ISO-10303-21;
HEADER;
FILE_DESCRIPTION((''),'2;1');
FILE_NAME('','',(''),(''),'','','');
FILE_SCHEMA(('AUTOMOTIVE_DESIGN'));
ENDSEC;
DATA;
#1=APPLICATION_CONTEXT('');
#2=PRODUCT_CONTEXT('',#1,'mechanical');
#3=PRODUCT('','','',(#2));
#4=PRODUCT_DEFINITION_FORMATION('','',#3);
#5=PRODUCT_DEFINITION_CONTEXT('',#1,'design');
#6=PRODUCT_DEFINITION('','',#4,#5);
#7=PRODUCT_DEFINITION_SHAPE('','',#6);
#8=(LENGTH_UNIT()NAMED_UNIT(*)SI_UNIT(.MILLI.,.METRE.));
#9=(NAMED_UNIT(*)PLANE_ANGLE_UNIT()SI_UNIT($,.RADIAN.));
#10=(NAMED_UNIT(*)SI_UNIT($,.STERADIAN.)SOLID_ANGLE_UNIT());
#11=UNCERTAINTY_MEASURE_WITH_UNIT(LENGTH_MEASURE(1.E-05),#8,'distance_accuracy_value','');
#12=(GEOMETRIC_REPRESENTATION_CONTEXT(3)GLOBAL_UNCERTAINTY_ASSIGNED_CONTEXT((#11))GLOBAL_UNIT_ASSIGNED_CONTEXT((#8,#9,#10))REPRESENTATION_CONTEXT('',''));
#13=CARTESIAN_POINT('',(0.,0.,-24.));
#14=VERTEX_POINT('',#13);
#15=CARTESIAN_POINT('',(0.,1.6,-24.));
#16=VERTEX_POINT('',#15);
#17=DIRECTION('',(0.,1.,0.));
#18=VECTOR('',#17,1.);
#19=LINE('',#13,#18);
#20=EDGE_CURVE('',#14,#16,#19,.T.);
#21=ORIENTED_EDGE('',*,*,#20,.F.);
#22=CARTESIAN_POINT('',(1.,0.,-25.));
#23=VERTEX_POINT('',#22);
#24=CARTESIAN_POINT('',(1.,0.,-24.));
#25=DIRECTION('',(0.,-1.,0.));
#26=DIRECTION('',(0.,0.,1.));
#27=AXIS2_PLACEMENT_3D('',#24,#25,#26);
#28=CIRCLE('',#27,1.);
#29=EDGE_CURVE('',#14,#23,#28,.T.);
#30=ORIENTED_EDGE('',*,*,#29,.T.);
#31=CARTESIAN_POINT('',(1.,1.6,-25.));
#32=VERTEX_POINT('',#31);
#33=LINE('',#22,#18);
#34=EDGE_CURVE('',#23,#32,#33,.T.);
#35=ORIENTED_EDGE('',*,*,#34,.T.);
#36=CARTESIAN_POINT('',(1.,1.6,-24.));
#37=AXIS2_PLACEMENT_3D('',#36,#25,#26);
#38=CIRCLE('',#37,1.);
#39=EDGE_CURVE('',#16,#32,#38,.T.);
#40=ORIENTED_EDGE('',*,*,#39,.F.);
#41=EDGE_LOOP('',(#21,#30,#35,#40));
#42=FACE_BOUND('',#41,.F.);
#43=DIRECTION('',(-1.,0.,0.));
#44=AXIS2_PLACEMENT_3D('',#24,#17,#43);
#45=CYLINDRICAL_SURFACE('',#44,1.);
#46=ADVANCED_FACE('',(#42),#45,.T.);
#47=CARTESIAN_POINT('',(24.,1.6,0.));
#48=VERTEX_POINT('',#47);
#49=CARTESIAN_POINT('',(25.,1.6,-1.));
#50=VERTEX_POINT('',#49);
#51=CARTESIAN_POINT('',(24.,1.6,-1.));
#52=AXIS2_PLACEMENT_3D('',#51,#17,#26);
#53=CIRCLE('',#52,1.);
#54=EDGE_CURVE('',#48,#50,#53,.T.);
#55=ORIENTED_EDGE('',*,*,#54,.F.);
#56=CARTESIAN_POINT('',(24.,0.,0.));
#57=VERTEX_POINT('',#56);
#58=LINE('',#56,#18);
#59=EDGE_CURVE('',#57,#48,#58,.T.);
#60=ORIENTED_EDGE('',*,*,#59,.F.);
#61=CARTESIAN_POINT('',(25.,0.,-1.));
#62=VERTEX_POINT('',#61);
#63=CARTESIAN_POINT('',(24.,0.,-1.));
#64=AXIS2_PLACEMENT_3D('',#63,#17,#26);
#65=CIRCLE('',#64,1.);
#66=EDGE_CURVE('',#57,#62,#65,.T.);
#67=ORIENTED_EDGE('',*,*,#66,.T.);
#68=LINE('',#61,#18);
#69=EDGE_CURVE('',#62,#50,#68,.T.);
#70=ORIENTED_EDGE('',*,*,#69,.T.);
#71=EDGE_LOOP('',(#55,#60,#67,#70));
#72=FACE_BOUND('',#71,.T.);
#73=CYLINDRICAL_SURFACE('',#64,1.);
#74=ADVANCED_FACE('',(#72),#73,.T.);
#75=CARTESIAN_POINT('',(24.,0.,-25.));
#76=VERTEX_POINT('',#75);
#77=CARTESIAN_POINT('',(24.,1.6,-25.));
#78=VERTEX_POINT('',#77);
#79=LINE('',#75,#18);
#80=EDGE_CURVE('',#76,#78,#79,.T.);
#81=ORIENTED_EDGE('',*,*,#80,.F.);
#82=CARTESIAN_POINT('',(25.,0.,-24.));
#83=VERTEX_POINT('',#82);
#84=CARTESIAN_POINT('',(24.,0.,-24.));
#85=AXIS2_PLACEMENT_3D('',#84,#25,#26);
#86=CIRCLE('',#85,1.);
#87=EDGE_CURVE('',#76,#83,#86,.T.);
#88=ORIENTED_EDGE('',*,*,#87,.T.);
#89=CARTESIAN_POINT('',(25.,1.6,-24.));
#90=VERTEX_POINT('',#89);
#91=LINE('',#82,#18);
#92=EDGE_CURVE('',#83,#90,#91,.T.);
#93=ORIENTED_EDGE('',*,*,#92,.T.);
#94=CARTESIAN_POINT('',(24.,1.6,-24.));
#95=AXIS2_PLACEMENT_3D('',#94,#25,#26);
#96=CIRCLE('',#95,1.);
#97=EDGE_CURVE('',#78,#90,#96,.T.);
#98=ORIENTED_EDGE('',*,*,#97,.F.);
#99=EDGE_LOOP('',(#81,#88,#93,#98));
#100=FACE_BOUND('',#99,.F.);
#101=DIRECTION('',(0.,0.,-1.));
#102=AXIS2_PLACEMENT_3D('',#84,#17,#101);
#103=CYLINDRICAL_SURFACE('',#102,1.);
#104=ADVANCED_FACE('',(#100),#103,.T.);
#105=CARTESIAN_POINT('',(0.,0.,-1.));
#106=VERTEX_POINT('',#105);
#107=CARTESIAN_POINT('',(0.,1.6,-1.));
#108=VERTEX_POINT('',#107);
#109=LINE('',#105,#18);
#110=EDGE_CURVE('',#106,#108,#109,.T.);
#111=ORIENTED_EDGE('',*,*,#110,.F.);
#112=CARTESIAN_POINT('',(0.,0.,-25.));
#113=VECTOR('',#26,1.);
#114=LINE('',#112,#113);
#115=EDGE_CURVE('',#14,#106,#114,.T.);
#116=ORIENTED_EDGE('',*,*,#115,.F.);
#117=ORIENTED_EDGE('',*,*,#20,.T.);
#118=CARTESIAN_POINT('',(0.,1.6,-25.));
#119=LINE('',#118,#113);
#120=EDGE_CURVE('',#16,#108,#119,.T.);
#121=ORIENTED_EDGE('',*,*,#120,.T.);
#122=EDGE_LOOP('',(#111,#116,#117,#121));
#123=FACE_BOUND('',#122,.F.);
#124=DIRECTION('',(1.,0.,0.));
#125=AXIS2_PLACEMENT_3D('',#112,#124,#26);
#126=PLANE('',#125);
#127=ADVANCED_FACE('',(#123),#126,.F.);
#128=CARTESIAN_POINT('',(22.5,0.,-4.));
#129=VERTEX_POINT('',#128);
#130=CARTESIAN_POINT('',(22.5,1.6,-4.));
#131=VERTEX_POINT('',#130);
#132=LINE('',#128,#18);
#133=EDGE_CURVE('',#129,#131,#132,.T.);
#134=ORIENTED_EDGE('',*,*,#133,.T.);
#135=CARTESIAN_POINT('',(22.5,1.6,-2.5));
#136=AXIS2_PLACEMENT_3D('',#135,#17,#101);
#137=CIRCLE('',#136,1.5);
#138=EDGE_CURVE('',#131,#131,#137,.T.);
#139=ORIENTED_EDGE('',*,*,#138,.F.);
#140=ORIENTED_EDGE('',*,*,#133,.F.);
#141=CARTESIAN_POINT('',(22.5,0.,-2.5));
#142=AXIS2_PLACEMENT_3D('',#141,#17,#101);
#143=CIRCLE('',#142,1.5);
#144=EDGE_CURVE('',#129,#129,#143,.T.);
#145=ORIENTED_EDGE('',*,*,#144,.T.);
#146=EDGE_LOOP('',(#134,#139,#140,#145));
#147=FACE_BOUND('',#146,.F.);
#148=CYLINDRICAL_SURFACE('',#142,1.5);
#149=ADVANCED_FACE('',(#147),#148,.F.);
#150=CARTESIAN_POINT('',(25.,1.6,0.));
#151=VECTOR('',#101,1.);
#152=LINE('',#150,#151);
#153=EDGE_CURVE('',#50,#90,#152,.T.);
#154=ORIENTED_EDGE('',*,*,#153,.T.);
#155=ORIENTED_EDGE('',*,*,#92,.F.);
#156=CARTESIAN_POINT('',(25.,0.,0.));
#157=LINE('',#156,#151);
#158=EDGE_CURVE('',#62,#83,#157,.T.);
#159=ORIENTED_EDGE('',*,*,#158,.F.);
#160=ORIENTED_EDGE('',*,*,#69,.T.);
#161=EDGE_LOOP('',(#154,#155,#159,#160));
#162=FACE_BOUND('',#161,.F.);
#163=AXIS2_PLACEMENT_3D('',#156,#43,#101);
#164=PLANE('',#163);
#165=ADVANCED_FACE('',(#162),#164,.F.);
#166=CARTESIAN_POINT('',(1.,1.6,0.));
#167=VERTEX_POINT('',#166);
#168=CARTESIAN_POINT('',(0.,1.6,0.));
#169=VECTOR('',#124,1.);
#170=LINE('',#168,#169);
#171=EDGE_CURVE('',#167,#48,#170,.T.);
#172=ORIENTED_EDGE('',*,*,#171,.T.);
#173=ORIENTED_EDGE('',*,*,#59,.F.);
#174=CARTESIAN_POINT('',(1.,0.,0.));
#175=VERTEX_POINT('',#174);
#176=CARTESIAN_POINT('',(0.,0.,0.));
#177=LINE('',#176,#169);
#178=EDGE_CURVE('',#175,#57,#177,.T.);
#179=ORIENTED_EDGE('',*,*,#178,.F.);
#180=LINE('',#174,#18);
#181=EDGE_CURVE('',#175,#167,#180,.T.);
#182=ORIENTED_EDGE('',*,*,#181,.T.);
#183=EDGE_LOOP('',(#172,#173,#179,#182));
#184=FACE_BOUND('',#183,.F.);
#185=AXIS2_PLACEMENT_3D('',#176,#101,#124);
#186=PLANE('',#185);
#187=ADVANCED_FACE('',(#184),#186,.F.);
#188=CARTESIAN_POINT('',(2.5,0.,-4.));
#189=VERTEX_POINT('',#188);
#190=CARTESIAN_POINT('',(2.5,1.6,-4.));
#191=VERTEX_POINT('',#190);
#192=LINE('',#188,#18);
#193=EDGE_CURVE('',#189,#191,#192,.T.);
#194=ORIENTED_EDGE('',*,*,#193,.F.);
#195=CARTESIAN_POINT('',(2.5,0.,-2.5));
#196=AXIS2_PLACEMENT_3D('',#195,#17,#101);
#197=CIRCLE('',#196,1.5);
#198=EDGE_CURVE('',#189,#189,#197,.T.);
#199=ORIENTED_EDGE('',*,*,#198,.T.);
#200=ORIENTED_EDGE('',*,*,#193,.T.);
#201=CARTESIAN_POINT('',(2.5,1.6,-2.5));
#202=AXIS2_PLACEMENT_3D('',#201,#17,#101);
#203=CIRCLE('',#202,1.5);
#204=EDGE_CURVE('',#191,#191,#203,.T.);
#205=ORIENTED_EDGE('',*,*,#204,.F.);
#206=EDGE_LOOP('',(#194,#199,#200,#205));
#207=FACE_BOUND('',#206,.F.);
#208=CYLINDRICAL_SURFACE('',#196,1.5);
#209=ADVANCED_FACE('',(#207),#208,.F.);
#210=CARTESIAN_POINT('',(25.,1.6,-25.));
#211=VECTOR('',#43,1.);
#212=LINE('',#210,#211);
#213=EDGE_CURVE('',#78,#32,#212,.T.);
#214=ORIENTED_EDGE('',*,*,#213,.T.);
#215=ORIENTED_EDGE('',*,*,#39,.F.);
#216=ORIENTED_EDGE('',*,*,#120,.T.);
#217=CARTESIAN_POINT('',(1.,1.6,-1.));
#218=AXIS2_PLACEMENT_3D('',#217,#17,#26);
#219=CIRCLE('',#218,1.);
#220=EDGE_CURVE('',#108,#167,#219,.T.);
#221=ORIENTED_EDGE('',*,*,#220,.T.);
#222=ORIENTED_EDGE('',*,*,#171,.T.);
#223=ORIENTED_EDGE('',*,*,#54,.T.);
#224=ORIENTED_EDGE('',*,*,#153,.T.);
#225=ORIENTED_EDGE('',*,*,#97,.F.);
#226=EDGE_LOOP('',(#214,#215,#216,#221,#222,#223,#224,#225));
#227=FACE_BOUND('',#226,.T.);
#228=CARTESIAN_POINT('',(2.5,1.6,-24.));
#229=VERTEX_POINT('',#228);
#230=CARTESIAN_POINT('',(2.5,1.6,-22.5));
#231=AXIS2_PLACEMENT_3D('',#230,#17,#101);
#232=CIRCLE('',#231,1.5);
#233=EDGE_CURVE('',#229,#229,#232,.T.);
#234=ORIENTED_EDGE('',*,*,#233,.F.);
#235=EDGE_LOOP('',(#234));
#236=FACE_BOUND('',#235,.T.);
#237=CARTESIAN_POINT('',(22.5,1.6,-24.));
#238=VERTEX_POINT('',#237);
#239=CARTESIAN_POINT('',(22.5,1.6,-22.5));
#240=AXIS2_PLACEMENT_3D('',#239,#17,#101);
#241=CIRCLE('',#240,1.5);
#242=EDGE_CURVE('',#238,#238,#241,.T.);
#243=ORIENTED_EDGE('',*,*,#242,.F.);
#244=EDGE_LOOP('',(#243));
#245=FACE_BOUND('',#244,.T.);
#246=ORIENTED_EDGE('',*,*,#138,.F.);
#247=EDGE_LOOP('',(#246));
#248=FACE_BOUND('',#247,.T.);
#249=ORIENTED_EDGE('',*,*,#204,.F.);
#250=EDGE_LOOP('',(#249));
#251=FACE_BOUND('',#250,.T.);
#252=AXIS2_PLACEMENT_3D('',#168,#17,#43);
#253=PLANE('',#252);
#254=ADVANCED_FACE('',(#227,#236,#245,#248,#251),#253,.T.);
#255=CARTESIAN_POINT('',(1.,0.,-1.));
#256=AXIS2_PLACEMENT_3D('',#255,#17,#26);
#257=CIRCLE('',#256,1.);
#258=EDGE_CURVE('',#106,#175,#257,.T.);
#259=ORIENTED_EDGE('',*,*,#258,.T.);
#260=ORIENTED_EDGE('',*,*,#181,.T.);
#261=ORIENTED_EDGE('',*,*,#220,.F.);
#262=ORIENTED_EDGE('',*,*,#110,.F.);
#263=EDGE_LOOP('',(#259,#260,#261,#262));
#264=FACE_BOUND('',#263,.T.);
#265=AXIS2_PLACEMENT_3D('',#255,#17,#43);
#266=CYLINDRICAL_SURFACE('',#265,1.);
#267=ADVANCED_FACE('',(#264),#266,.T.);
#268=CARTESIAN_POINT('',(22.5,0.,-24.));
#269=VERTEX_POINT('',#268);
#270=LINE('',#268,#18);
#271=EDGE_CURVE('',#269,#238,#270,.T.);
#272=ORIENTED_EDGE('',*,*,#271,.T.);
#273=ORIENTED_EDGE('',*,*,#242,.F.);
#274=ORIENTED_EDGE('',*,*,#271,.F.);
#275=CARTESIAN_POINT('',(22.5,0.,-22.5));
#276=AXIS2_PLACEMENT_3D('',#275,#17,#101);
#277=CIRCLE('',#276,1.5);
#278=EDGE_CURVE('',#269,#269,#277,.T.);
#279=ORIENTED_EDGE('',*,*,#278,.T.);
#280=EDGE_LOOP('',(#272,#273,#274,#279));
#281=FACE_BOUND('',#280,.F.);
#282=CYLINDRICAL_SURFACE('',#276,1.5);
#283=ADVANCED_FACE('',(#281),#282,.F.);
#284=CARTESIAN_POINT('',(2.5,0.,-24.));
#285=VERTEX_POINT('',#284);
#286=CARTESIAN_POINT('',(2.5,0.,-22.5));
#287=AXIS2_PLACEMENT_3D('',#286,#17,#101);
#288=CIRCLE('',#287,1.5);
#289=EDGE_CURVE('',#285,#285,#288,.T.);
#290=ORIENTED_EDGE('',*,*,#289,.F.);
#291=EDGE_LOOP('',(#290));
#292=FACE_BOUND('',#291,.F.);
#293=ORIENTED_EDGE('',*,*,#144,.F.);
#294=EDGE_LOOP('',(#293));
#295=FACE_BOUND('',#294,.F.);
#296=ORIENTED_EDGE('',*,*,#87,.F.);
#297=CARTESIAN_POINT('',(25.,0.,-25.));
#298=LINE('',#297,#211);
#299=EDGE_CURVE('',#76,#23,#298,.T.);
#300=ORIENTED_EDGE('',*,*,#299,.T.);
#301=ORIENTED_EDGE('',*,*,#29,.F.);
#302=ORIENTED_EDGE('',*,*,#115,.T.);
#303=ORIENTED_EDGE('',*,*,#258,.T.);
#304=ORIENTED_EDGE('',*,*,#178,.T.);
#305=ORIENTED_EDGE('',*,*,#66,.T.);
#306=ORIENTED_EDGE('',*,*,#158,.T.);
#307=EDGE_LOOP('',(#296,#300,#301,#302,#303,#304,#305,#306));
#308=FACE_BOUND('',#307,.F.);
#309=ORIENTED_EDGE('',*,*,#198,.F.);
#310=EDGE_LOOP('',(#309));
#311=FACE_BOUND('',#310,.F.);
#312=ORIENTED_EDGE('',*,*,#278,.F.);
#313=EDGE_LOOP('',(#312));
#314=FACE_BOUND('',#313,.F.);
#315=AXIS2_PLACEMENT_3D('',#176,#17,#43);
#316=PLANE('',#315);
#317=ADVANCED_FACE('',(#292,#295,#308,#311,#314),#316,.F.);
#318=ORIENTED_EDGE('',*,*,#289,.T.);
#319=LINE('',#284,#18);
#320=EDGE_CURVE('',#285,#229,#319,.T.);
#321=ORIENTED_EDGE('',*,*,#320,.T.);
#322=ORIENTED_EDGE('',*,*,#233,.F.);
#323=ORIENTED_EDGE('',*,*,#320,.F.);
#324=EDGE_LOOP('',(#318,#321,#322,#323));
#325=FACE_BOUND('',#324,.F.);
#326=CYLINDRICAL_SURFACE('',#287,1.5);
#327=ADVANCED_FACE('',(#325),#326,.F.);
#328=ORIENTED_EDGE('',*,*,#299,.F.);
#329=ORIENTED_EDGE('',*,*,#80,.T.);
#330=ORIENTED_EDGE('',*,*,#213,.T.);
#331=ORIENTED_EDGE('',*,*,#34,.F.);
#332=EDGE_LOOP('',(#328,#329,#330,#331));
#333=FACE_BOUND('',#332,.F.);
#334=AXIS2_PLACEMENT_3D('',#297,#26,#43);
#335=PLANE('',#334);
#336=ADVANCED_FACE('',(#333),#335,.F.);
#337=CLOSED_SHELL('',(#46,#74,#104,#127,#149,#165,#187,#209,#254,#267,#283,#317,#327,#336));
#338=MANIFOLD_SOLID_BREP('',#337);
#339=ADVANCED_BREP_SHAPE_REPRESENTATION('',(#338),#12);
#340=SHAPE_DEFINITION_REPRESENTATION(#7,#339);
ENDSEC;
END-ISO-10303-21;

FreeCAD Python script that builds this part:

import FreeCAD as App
import Part
import Sketcher


def edges_at(feature, points):
    """Names of the edges that pass closest to the given points."""
    edges = feature.Shape.Edges
    near = lambda p: min(range(len(edges)), key=lambda i: edges[i].distToShape(Part.Vertex(*p))[0])
    return sorted({f"Edge{near(p) + 1}" for p in points})


def add_polygon(sketch, points):
    """Adds a closed chain of lines whose ends are joined by coincident constraints."""
    first, n = sketch.GeometryCount, len(points)
    for a, b in zip(points, points[1:] + points[:1]):
        sketch.addGeometry(Part.LineSegment(App.Vector(*a, 0), App.Vector(*b, 0)), False)
    for i in range(n):
        sketch.addConstraint(Sketcher.Constraint("Coincident", first + i, 2, first + (i + 1) % n, 1))

doc = App.newDocument("Part")
params = doc.addObject("Spreadsheet::Sheet", "Params")
for row, (alias, value) in enumerate([
    ("sketch1_width", "25 mm"),
    ("pad1_length", "1.6 mm"),
    ("sketch2_diameter", "3 mm"),
    ("hole_diameter", "3 mm"),
    ("hole_depth", "8 mm"),
    ("fillet_radius", "1 mm"),
], start=1):
    params.set(f"A{row}", alias)
    params.set(f"B{row}", "=" + value)
    params.setAlias(f"B{row}", alias)

body = doc.addObject("PartDesign::Body", "Body")

# Sketch on XZ plane
sketch1 = body.newObject("Sketcher::SketchObject", "Sketch")
sketch1.AttachmentSupport = (doc.getObject("XZ_Plane"), [""])
sketch1.MapMode = "FlatFace"
add_polygon(sketch1, [(0, -25), (0, 0), (25, 0), (25, -25)])  # lines 0-3
sketch1.addConstraint(Sketcher.Constraint("Vertical", 0))
sketch1.addConstraint(Sketcher.Constraint("Horizontal", 1))
sketch1.addConstraint(Sketcher.Constraint("Vertical", 2))
sketch1.addConstraint(Sketcher.Constraint("Horizontal", 3))
sketch1.addConstraint(Sketcher.Constraint("Coincident", 0, 2, -1, 1))
sketch1.addConstraint(Sketcher.Constraint("Equal", 3, 0))
sketch1.addConstraint(Sketcher.Constraint("DistanceX", 1, 1, 1, 2, 25.0))
sketch1.setExpression("Constraints[10]", "Params.sketch1_width")
pad1 = body.newObject("PartDesign::Pad", "Pad")
pad1.Profile = sketch1
pad1.setExpression("Length", "Params.pad1_length")
pad1.Reversed = True

# Sketch on XZ plane
sketch2 = body.newObject("Sketcher::SketchObject", "Sketch001")
sketch2.AttachmentSupport = (doc.getObject("XZ_Plane"), [""])
sketch2.MapMode = "FlatFace"
sketch2.addGeometry(Part.Circle(App.Vector(2.5, -22.5, 0), App.Vector(0, 0, 1), 1.5), False)
sketch2.addGeometry(Part.Circle(App.Vector(2.5, -2.5, 0), App.Vector(0, 0, 1), 1.5), False)
sketch2.addGeometry(Part.Circle(App.Vector(22.5, -2.5, 0), App.Vector(0, 0, 1), 1.5), False)
sketch2.addGeometry(Part.Circle(App.Vector(22.5, -22.5, 0), App.Vector(0, 0, 1), 1.5), False)
sketch2.addConstraint(Sketcher.Constraint("Equal", 0, 1))
sketch2.addConstraint(Sketcher.Constraint("Equal", 1, 2))
sketch2.addConstraint(Sketcher.Constraint("Equal", 2, 3))
sketch2.addConstraint(Sketcher.Constraint("Horizontal", 1, 3, 2, 3))
sketch2.addConstraint(Sketcher.Constraint("Horizontal", 0, 3, 3, 3))
sketch2.addConstraint(Sketcher.Constraint("Vertical", 0, 3, 1, 3))
sketch2.addConstraint(Sketcher.Constraint("Vertical", 2, 3, 3, 3))
sketch2.addConstraint(Sketcher.Constraint("Diameter", 0, 3.0))
sketch2.addConstraint(Sketcher.Constraint("DistanceY", 0, 3, 1, 3, 20.0))
sketch2.addConstraint(Sketcher.Constraint("DistanceX", 1, 3, 2, 3, 20.0))
sketch2.addConstraint(Sketcher.Constraint("DistanceX", -1, 1, 0, 3, 2.5))
sketch2.addConstraint(Sketcher.Constraint("DistanceY", 0, 3, -1, 1, 22.5))
sketch2.setExpression("Constraints[7]", "Params.sketch2_diameter")
doc.recompute()
hole = body.newObject("PartDesign::Hole", "Hole")
hole.Profile = sketch2
hole.ThreadType = "None"
hole.setExpression("Diameter", "Params.hole_diameter")
hole.DepthType = "Dimension"
hole.setExpression("Depth", "Params.hole_depth")
hole.DrillPoint = "Angled"
hole.DrillPointAngle = 118
doc.recompute()

fillet = body.newObject("PartDesign::Fillet", "Fillet")
fillet.Base = (hole, edges_at(hole, [
    (25, 0.8, -25),
    (25, 0.8, 0),
    (0, 0.8, -25),
    (0, 0.8, 0),
]))
fillet.setExpression("Radius", "Params.fillet_radius")

doc.recompute()
